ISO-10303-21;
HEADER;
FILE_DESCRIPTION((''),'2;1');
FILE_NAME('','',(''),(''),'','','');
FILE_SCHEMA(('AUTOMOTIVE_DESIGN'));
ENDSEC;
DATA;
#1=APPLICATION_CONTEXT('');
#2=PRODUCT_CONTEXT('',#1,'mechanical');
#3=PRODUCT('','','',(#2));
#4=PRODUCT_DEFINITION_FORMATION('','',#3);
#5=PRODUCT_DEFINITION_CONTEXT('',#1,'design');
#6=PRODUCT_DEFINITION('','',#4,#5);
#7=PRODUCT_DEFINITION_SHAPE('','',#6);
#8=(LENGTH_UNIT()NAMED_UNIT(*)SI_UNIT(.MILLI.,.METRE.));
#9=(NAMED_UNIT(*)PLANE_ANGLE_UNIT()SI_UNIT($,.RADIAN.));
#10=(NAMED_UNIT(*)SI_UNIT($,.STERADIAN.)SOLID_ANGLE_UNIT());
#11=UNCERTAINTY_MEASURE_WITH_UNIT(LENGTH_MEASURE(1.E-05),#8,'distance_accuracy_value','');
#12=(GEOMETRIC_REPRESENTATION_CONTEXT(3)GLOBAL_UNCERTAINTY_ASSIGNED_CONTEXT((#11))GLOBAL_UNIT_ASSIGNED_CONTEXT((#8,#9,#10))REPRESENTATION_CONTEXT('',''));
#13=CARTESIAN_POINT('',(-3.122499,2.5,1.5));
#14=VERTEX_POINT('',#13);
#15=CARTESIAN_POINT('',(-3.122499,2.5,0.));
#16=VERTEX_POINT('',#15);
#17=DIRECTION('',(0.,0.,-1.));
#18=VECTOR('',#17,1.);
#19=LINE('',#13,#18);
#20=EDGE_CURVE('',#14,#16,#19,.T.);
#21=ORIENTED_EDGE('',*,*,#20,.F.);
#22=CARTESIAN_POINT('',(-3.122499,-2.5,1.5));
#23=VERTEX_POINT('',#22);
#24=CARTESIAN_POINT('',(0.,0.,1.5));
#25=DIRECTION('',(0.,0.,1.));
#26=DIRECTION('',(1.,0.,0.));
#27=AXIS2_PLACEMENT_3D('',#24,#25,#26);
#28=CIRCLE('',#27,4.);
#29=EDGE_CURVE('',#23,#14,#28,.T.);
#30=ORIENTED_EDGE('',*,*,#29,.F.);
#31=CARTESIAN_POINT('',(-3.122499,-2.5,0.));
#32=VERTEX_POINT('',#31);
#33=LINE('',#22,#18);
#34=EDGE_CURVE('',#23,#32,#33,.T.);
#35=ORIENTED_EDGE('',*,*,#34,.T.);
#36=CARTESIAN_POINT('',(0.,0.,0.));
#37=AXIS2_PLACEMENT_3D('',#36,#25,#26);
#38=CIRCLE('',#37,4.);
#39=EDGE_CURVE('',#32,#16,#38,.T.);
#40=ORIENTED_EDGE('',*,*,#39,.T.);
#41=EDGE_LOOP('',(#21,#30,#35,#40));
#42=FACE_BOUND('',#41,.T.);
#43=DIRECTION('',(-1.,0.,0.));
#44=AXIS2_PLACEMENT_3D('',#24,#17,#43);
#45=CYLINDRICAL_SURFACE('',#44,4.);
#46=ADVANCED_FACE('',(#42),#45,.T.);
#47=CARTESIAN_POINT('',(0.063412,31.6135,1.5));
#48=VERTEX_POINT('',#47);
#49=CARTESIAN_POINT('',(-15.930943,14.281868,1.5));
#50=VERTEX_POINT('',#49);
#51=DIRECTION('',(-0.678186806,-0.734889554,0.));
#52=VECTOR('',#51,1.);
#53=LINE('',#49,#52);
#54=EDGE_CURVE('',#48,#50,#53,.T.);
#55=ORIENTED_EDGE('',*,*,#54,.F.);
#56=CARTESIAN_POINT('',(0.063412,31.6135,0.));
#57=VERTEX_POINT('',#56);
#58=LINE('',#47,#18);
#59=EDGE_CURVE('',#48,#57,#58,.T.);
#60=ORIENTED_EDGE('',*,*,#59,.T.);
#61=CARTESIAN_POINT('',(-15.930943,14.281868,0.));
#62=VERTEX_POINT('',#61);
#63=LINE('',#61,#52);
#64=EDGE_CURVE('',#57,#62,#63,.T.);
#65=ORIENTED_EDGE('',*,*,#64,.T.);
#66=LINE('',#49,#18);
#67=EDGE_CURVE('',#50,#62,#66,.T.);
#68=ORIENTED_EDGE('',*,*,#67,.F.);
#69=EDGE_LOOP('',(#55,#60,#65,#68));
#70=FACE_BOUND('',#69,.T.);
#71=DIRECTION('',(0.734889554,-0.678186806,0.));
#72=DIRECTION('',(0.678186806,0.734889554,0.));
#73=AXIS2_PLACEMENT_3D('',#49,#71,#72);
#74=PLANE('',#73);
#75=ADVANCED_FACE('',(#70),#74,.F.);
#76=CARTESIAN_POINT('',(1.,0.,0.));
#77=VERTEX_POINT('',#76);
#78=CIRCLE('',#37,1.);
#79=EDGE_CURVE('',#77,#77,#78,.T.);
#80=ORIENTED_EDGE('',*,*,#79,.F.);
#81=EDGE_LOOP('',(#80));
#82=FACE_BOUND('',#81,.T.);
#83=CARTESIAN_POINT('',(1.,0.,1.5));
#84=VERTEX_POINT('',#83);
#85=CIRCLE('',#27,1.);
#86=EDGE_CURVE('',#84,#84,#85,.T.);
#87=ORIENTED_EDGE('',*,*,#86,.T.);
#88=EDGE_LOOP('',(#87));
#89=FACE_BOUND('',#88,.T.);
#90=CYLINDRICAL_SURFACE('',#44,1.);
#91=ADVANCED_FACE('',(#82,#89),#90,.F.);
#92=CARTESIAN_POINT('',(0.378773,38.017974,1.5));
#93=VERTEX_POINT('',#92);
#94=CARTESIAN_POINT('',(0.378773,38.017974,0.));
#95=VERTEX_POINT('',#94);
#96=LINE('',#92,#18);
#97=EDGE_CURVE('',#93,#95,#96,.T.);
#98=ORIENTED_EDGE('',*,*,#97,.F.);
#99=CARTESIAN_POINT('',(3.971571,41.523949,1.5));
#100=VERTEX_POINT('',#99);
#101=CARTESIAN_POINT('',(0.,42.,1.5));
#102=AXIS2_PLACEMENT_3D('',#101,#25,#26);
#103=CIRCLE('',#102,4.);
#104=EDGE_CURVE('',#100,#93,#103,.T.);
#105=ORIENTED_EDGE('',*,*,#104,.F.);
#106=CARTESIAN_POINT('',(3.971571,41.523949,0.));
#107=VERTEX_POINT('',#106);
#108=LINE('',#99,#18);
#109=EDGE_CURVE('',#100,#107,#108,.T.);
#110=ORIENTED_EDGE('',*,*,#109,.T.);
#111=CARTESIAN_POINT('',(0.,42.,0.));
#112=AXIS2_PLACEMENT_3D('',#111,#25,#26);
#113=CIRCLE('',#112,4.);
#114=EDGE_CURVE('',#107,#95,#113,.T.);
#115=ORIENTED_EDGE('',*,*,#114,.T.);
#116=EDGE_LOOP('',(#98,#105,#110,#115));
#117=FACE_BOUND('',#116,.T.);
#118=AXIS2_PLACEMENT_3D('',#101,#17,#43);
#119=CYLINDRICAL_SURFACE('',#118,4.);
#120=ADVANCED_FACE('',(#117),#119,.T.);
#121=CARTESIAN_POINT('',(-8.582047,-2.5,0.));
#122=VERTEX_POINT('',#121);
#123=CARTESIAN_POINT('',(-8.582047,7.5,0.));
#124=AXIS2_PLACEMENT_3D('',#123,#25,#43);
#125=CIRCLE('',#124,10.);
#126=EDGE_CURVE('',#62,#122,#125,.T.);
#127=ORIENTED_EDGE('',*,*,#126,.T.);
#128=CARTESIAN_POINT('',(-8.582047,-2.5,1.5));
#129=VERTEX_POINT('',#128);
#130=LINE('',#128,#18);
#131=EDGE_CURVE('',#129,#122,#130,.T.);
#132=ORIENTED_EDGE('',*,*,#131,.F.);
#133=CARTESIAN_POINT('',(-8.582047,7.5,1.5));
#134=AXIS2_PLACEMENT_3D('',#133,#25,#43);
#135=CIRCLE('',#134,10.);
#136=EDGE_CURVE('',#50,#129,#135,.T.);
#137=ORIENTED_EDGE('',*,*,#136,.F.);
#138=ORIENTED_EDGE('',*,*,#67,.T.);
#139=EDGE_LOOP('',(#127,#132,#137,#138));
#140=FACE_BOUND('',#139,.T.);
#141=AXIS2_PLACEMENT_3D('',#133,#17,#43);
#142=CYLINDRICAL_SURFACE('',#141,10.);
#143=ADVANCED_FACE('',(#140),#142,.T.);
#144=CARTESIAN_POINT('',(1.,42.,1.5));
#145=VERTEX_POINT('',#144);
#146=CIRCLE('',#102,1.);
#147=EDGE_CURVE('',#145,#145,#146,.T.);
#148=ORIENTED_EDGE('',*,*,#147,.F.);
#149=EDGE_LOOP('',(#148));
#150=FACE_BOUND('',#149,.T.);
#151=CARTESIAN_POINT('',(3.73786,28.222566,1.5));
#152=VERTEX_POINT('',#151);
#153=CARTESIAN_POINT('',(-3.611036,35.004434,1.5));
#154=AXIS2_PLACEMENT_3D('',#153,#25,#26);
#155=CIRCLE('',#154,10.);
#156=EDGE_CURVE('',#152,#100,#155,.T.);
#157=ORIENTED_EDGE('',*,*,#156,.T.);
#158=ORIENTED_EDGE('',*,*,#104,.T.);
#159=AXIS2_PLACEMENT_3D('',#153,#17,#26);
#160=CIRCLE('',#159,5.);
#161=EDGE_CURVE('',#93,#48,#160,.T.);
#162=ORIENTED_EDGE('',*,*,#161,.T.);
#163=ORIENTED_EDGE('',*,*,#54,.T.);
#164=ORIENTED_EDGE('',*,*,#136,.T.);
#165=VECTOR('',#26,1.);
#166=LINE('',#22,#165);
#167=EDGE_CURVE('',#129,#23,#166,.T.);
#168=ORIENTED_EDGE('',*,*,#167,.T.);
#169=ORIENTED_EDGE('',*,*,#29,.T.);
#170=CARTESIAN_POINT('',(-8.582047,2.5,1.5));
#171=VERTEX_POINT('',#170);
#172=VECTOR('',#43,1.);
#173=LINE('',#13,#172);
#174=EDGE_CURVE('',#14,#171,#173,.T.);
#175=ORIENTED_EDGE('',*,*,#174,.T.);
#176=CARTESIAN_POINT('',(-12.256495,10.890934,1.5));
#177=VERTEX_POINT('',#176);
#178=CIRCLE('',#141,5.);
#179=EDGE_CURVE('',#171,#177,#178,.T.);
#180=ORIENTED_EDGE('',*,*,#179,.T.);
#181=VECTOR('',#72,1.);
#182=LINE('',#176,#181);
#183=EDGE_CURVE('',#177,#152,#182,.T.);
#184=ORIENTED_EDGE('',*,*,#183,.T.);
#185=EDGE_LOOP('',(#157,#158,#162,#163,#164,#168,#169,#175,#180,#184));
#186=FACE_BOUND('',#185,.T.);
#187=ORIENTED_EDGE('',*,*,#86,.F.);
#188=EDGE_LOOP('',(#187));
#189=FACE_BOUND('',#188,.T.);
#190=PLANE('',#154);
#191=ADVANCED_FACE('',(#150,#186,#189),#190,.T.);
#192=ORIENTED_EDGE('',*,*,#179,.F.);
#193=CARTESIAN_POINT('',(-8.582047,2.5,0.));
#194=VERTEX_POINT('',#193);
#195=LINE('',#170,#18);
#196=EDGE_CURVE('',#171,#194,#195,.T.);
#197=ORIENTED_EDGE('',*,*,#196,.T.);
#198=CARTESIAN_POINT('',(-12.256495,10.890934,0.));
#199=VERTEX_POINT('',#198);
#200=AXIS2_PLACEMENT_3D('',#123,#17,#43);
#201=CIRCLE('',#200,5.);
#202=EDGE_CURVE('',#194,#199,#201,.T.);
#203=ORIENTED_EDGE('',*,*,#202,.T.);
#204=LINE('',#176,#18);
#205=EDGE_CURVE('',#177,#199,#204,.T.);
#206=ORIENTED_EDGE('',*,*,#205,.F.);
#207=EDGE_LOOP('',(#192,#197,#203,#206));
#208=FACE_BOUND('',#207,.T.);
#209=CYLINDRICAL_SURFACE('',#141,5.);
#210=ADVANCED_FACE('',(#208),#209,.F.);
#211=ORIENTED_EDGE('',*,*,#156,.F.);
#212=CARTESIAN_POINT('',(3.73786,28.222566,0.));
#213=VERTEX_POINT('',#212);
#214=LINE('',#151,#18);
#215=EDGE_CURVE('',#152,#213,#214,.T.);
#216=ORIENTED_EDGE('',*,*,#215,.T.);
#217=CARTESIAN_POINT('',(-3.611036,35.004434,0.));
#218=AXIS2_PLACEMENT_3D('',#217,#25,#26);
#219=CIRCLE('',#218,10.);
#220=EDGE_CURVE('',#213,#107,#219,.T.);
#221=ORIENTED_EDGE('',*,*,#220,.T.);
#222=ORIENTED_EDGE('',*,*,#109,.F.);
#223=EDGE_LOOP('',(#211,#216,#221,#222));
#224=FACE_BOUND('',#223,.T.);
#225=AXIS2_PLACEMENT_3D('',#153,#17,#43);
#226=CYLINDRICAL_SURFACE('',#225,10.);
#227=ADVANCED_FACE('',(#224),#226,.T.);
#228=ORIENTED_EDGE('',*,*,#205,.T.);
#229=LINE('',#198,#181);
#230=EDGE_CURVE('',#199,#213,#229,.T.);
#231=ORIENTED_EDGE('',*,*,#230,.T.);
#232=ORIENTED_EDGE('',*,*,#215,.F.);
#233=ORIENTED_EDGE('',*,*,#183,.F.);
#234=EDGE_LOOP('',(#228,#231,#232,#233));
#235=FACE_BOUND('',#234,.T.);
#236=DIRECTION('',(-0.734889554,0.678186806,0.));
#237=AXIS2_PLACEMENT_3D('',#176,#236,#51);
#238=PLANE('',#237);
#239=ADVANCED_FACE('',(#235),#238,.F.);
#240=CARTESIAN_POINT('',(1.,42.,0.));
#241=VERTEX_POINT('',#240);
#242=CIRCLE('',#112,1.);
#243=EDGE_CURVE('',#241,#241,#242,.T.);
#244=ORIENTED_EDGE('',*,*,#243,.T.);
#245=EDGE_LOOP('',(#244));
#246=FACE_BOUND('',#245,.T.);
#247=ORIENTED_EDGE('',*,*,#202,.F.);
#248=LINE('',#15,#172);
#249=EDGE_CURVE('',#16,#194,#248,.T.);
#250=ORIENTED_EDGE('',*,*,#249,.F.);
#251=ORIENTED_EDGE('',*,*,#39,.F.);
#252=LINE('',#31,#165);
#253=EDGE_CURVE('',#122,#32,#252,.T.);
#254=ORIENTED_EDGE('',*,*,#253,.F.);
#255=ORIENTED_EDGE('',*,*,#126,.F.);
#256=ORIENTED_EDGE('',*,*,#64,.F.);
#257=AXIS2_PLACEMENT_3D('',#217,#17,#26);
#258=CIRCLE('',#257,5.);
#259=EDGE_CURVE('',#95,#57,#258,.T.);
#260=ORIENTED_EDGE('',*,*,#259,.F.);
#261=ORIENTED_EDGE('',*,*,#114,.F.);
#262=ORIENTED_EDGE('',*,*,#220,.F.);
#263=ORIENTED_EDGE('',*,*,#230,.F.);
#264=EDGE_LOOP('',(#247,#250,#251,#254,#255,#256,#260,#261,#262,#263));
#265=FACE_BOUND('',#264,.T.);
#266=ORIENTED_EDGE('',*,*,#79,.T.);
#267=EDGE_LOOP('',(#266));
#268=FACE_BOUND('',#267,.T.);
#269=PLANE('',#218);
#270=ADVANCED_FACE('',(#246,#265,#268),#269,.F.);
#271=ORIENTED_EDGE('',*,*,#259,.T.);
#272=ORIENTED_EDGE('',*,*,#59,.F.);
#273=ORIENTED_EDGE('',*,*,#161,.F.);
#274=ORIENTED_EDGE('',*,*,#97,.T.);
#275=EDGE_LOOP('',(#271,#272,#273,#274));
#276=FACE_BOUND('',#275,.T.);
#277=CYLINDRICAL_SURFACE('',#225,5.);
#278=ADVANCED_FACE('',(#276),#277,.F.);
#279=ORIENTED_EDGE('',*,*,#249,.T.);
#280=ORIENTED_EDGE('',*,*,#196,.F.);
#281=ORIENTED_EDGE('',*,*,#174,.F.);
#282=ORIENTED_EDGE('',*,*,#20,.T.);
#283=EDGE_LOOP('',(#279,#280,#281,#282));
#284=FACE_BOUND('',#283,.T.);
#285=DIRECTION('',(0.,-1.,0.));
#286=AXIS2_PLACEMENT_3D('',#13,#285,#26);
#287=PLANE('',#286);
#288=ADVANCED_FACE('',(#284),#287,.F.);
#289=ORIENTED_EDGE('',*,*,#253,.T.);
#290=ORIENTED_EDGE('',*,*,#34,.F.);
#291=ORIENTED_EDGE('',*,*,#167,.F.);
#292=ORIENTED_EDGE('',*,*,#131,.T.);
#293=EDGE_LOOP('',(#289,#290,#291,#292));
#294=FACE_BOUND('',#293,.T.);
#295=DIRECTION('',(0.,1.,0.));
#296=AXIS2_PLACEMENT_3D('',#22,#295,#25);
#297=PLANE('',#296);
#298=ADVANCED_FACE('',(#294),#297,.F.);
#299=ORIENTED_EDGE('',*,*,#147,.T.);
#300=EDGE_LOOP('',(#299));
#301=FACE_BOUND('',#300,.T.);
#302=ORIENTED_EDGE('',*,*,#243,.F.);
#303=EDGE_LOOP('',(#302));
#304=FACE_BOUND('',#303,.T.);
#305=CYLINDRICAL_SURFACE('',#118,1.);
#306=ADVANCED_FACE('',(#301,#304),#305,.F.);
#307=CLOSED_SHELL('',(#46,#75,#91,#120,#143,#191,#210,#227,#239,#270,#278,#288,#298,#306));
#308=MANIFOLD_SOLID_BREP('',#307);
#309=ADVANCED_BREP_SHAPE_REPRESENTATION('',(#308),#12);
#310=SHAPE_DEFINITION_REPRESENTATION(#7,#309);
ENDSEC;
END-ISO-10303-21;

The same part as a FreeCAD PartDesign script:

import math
import FreeCAD as App
import Part
import Sketcher
from FreeCAD import Vector

doc = App.newDocument("Part")
body = doc.addObject("PartDesign::Body", "Body")

# Sketch on XY plane
sketch1 = body.newObject("Sketcher::SketchObject", "Sketch")
sketch1.AttachmentSupport = (doc.getObject("XY_Plane"), [""])
sketch1.MapMode = "FlatFace"
sketch1.addGeometry(Part.LineSegment(Vector(-3.1, 2.5, 0), Vector(-8.6, 2.5, 0)), False)
sketch1.addGeometry(Part.ArcOfCircle(Part.Circle(Vector(-8.6, 7.5, 0), Vector(0, 0, 1), 5), math.radians(137), math.radians(270)), False)
sketch1.addGeometry(Part.LineSegment(Vector(-12.3, 10.9, 0), Vector(3.7, 28.2, 0)), False)
sketch1.addGeometry(Part.ArcOfCircle(Part.Circle(Vector(-3.6, 35, 0), Vector(0, 0, 1), 10), math.radians(-43), math.radians(41)), False)
sketch1.addGeometry(Part.ArcOfCircle(Part.Circle(Vector(0, 42, 0), Vector(0, 0, 1), 4), math.radians(-7), math.radians(275)), False)
sketch1.addGeometry(Part.ArcOfCircle(Part.Circle(Vector(-3.6, 35, 0), Vector(0, 0, 1), 5), math.radians(-43), math.radians(37)), False)
sketch1.addGeometry(Part.LineSegment(Vector(0.1, 31.6, 0), Vector(-15.9, 14.3, 0)), False)
sketch1.addGeometry(Part.ArcOfCircle(Part.Circle(Vector(-8.6, 7.5, 0), Vector(0, 0, 1), 10), math.radians(137), math.radians(270)), False)
sketch1.addGeometry(Part.LineSegment(Vector(-8.6, -2.5, 0), Vector(-3.1, -2.5, 0)), False)
sketch1.addGeometry(Part.ArcOfCircle(Part.Circle(Vector(0, 0, 0), Vector(0, 0, 1), 4), math.radians(-141), math.radians(141)), False)
sketch1.addGeometry(Part.Circle(Vector(0, 0, 0), Vector(0, 0, 1), 1), False)
sketch1.addGeometry(Part.Circle(Vector(0, 42, 0), Vector(0, 0, 1), 1), False)
sketch1.addConstraint(Sketcher.Constraint("Tangent", 0, 2, 1, 2))
sketch1.addConstraint(Sketcher.Constraint("Tangent", 1, 1, 2, 1))
sketch1.addConstraint(Sketcher.Constraint("Tangent", 2, 2, 3, 1))
sketch1.addConstraint(Sketcher.Constraint("Coincident", 3, 2, 4, 1))
sketch1.addConstraint(Sketcher.Constraint("Coincident", 4, 2, 5, 2))
sketch1.addConstraint(Sketcher.Constraint("Tangent", 5, 1, 6, 1))
sketch1.addConstraint(Sketcher.Constraint("Tangent", 6, 2, 7, 1))
sketch1.addConstraint(Sketcher.Constraint("Tangent", 7, 2, 8, 1))
sketch1.addConstraint(Sketcher.Constraint("Coincident", 8, 2, 9, 1))
sketch1.addConstraint(Sketcher.Constraint("Coincident", 9, 2, 0, 1))
sketch1.addConstraint(Sketcher.Constraint("Horizontal", 0))
sketch1.addConstraint(Sketcher.Constraint("Horizontal", 8))
sketch1.addConstraint(Sketcher.Constraint("Coincident", 9, 3, -1, 1))
sketch1.addConstraint(Sketcher.Constraint("Coincident", 10, 3, -1, 1))
sketch1.addConstraint(Sketcher.Constraint("Coincident", 5, 3, 3, 3))
sketch1.addConstraint(Sketcher.Constraint("Coincident", 7, 3, 1, 3))
sketch1.addConstraint(Sketcher.Constraint("Coincident", 11, 3, 4, 3))
sketch1.addConstraint(Sketcher.Constraint("Equal", 1, 5))
sketch1.addConstraint(Sketcher.Constraint("Equal", 3, 7))
sketch1.addConstraint(Sketcher.Constraint("Equal", 4, 9))
sketch1.addConstraint(Sketcher.Constraint("Equal", 10, 11))
sketch1.addConstraint(Sketcher.Constraint("PointOnObject", 4, 3, -2))
sketch1.addConstraint(Sketcher.Constraint("Vertical", 8, 2, 9, 2))
sketch1.addConstraint(Sketcher.Constraint("Diameter", 10, 2.0))
sketch1.addConstraint(Sketcher.Constraint("Radius", 1, 5.0))
sketch1.addConstraint(Sketcher.Constraint("Radius", 3, 10.0))
sketch1.addConstraint(Sketcher.Constraint("Radius", 4, 4.0))
sketch1.addConstraint(Sketcher.Constraint("DistanceY", -1, 1, 4, 3, 42.0))
sketch1.addConstraint(Sketcher.Constraint("DistanceX", 0, 2, 0, 1, 5.459548))
sketch1.addConstraint(Sketcher.Constraint("DistanceY", -1, 1, 5, 1, 31.6135))
sketch1.addConstraint(Sketcher.Constraint("DistanceX", -1, 1, 2, 2, 3.73786))
pad1 = body.newObject("PartDesign::Pad", "Pad")
pad1.Profile = sketch1
pad1.Length = 1.5

doc.recompute()
